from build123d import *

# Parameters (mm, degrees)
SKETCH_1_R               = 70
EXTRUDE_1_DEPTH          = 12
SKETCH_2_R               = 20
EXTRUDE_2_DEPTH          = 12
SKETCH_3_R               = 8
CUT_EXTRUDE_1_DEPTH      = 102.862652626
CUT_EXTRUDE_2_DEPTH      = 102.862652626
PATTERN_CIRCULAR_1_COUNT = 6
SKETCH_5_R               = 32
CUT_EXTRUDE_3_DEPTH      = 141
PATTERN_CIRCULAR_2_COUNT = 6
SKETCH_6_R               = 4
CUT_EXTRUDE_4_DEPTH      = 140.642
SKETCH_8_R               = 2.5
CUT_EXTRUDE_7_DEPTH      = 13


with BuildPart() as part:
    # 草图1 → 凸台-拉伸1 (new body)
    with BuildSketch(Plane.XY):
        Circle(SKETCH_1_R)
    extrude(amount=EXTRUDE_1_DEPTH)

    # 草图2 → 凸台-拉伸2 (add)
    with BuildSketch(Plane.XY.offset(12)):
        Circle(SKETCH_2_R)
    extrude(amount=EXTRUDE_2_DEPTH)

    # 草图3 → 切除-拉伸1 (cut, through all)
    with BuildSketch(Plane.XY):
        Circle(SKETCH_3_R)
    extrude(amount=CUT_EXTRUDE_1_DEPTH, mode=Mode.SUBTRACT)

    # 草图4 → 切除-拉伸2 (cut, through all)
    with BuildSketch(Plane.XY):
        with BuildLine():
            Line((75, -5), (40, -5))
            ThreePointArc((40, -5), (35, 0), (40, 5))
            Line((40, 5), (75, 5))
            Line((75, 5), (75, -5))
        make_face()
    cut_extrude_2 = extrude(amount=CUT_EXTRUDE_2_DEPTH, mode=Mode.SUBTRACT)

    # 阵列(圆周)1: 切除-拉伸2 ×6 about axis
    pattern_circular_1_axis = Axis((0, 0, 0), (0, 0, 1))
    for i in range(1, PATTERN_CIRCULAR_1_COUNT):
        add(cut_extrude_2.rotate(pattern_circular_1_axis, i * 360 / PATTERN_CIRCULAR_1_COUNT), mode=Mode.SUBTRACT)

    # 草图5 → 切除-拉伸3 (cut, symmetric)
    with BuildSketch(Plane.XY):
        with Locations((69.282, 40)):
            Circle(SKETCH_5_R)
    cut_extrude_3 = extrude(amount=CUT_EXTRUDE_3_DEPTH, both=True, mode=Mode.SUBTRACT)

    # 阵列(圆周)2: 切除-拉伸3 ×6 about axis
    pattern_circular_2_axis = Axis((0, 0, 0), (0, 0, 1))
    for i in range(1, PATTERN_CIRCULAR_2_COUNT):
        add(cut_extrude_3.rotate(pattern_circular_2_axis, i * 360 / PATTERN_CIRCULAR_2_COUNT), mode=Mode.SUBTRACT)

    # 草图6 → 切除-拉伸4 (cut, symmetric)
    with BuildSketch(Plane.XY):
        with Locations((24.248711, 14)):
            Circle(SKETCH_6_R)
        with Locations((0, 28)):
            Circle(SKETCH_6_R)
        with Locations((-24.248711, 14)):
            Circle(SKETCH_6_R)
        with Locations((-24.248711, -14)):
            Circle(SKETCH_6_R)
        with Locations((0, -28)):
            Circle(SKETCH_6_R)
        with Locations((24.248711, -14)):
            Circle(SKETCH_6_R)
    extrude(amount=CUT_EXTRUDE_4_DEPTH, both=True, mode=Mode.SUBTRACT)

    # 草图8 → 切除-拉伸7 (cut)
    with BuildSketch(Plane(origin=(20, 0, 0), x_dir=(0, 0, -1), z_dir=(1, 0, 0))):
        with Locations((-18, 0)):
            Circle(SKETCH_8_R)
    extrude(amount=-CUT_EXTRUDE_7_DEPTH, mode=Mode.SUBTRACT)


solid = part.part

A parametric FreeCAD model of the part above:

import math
import FreeCAD as App
import Part
import Sketcher

V = App.Vector
Q = App.Units.Quantity

doc = App.newDocument("Part")
params = doc.addObject("Spreadsheet::Sheet", "Params")
for row, (alias, value) in enumerate([
    ("sketch1_diameter", "140 mm"),
    ("pad1_length", "12 mm"),
    ("sketch2_diameter", "40 mm"),
    ("pad2_length", "12 mm"),
    ("sketch3_diameter", "16 mm"),
    ("sketch4_radius", "5 mm"),
    ("sketch4_width", "35 mm"),
    ("sketch5_diameter", "64 mm"),
    ("pocket3_length", "282 mm"),
    ("sketch6_diameter", "8 mm"),
    ("pocket4_length", "281.284 mm"),
    ("sketch7_diameter", "5 mm"),
    ("pocket5_length", "13 mm"),
], start=1):
    params.set(f"A{row}", alias)
    params.set(f"B{row}", "=" + value)
    params.setAlias(f"B{row}", alias)

body = doc.addObject("PartDesign::Body", "Body")

# Sketch on XY plane
sketch1 = body.newObject("Sketcher::SketchObject", "Sketch")
sketch1.AttachmentSupport = (doc.getObject("XY_Plane"), [""])
sketch1.MapMode = "FlatFace"
sketch1.addGeometry(Part.Circle(V(0, 0, 0), V(0, 0, 1), 70), False)
sketch1.addConstraint([
    Sketcher.Constraint("Coincident", 0, 3, -1, 1),
    Sketcher.Constraint("Diameter", 0, Q("140 mm")),
])
sketch1.setExpression("Constraints[1]", "Params.sketch1_diameter")
pad1 = body.newObject("PartDesign::Pad", "Pad")
pad1.Profile = sketch1
pad1.setExpression("Length", "Params.pad1_length")

# Sketch on XY plane
sketch2 = body.newObject("Sketcher::SketchObject", "Sketch001")
sketch2.AttachmentSupport = (doc.getObject("XY_Plane"), [""])
sketch2.MapMode = "FlatFace"
sketch2.AttachmentOffset = App.Placement(V(0, 0, 12), App.Rotation())
sketch2.addGeometry(Part.Circle(V(0, 0, 0), V(0, 0, 1), 20), False)
sketch2.addConstraint([
    Sketcher.Constraint("Coincident", 0, 3, -1, 1),
    Sketcher.Constraint("Diameter", 0, Q("40 mm")),
])
sketch2.setExpression("Constraints[1]", "Params.sketch2_diameter")
pad2 = body.newObject("PartDesign::Pad", "Pad001")
pad2.Profile = sketch2
pad2.setExpression("Length", "Params.pad2_length")

# Sketch on XY plane
sketch3 = body.newObject("Sketcher::SketchObject", "Sketch002")
sketch3.AttachmentSupport = (doc.getObject("XY_Plane"), [""])
sketch3.MapMode = "FlatFace"
sketch3.addGeometry(Part.Circle(V(0, 0, 0), V(0, 0, 1), 8), False)
sketch3.addConstraint([
    Sketcher.Constraint("Coincident", 0, 3, -1, 1),
    Sketcher.Constraint("Diameter", 0, Q("16 mm")),
])
sketch3.setExpression("Constraints[1]", "Params.sketch3_diameter")
pocket1 = body.newObject("PartDesign::Pocket", "Pocket")
pocket1.Profile = sketch3
pocket1.Type = "ThroughAll"
pocket1.Reversed = True

# Sketch on XY plane
sketch4 = body.newObject("Sketcher::SketchObject", "Sketch003")
sketch4.AttachmentSupport = (doc.getObject("XY_Plane"), [""])
sketch4.MapMode = "FlatFace"
sketch4.addGeometry([
    Part.LineSegment(V(40, -5, 0), V(75, -5, 0)),
    Part.LineSegment(V(75, -5, 0), V(75, 5, 0)),
    Part.LineSegment(V(75, 5, 0), V(40, 5, 0)),
    Part.ArcOfCircle(Part.Circle(V(40, 0, 0), V(0, 0, 1), 5), math.radians(90), math.radians(270)),
], False)
sketch4.addConstraint([
    Sketcher.Constraint("Coincident", 0, 2, 1, 1),
    Sketcher.Constraint("Coincident", 1, 2, 2, 1),
    Sketcher.Constraint("Tangent", 2, 2, 3, 1),
    Sketcher.Constraint("Tangent", 3, 2, 0, 1),
    Sketcher.Constraint("Horizontal", 0),
    Sketcher.Constraint("Vertical", 1),
    Sketcher.Constraint("Horizontal", 2),
    Sketcher.Constraint("PointOnObject", 3, 3, -1),
    Sketcher.Constraint("Radius", 3, Q("5 mm")),
    Sketcher.Constraint("DistanceX", 0, 1, 0, 2, Q("35 mm")),
    Sketcher.Constraint("DistanceX", -1, 1, 3, 3, Q("40 mm")),
])
sketch4.setExpression("Constraints[8]", "Params.sketch4_radius")
sketch4.setExpression("Constraints[9]", "Params.sketch4_width")
pocket2 = body.newObject("PartDesign::Pocket", "Pocket001")
pocket2.Profile = sketch4
pocket2.Type = "ThroughAll"
pocket2.Reversed = True
doc.recompute()

polarpattern = body.newObject("PartDesign::PolarPattern", "PolarPattern")
polarpattern.Originals = [pocket2]
polarpattern.Axis = (doc.getObject("Z_Axis"), [""])
polarpattern.Angle = 360
polarpattern.Occurrences = 6
body.Tip = polarpattern

# Sketch on XY plane
sketch5 = body.newObject("Sketcher::SketchObject", "Sketch004")
sketch5.AttachmentSupport = (doc.getObject("XY_Plane"), [""])
sketch5.MapMode = "FlatFace"
sketch5.addGeometry(Part.Circle(V(69, 40, 0), V(0, 0, 1), 32), False)
sketch5.addConstraint([
    Sketcher.Constraint("Diameter", 0, Q("64 mm")),
    Sketcher.Constraint("DistanceY", -1, 1, 0, 3, Q("40 mm")),
    Sketcher.Constraint("DistanceX", -1, 1, 0, 3, Q("69.282 mm")),
])
sketch5.setExpression("Constraints[0]", "Params.sketch5_diameter")
pocket3 = body.newObject("PartDesign::Pocket", "Pocket002")
pocket3.Profile = sketch5
pocket3.setExpression("Length", "Params.pocket3_length")
pocket3.Midplane = True
doc.recompute()

polarpattern2 = body.newObject("PartDesign::PolarPattern", "PolarPattern001")
polarpattern2.Originals = [pocket3]
polarpattern2.Axis = (doc.getObject("Z_Axis"), [""])
polarpattern2.Angle = 360
polarpattern2.Occurrences = 6
body.Tip = polarpattern2

# Sketch on XY plane
sketch6 = body.newObject("Sketcher::SketchObject", "Sketch005")
sketch6.AttachmentSupport = (doc.getObject("XY_Plane"), [""])
sketch6.MapMode = "FlatFace"
sketch6.addGeometry([
    Part.Circle(V(24.2, 14, 0), V(0, 0, 1), 4),  # 0
    Part.Circle(V(0, 28, 0), V(0, 0, 1), 4),  # 1
    Part.Circle(V(-24.2, 14, 0), V(0, 0, 1), 4),  # 2
    Part.Circle(V(-24.2, -14, 0), V(0, 0, 1), 4),  # 3
    Part.Circle(V(0, -28, 0), V(0, 0, 1), 4),  # 4
    Part.Circle(V(24.2, -14, 0), V(0, 0, 1), 4),  # 5
], False)
sketch6.addConstraint([
    Sketcher.Constraint("Equal", 0, 1),
    Sketcher.Constraint("Equal", 1, 2),
    Sketcher.Constraint("Equal", 2, 3),
    Sketcher.Constraint("Equal", 3, 4),
    Sketcher.Constraint("Equal", 4, 5),
    Sketcher.Constraint("Symmetric", 0, 3, 3, 3, -1, 1),
    Sketcher.Constraint("Symmetric", 1, 3, 4, 3, -1, 1),
    Sketcher.Constraint("Symmetric", 2, 3, 5, 3, -1, 1),
    Sketcher.Constraint("Symmetric", 0, 3, 2, 3, -2),
    Sketcher.Constraint("PointOnObject", 1, 3, -2),
    Sketcher.Constraint("Diameter", 0, Q("8 mm")),
    Sketcher.Constraint("DistanceY", -1, 1, 0, 3, Q("14 mm")),
    Sketcher.Constraint("DistanceY", -1, 1, 1, 3, Q("28 mm")),
    Sketcher.Constraint("DistanceX", -1, 1, 0, 3, Q("24.248711 mm")),
])
sketch6.setExpression("Constraints[10]", "Params.sketch6_diameter")
pocket4 = body.newObject("PartDesign::Pocket", "Pocket003")
pocket4.Profile = sketch6
pocket4.setExpression("Length", "Params.pocket4_length")
pocket4.Midplane = True

# Sketch on YZ plane
sketch7 = body.newObject("Sketcher::SketchObject", "Sketch006")
sketch7.AttachmentSupport = (doc.getObject("YZ_Plane"), [""])
sketch7.MapMode = "FlatFace"
sketch7.AttachmentOffset = App.Placement(V(0, 0, 20), App.Rotation())
sketch7.addGeometry(Part.Circle(V(0, 18, 0), V(0, 0, 1), 2.5), False)
sketch7.addConstraint([
    Sketcher.Constraint("PointOnObject", 0, 3, -2),
    Sketcher.Constraint("Diameter", 0, Q("5 mm")),
    Sketcher.Constraint("DistanceY", -1, 1, 0, 3, Q("18 mm")),
])
sketch7.setExpression("Constraints[1]", "Params.sketch7_diameter")
pocket5 = body.newObject("PartDesign::Pocket", "Pocket004")
pocket5.Profile = sketch7
pocket5.setExpression("Length", "Params.pocket5_length")

doc.recompute()
